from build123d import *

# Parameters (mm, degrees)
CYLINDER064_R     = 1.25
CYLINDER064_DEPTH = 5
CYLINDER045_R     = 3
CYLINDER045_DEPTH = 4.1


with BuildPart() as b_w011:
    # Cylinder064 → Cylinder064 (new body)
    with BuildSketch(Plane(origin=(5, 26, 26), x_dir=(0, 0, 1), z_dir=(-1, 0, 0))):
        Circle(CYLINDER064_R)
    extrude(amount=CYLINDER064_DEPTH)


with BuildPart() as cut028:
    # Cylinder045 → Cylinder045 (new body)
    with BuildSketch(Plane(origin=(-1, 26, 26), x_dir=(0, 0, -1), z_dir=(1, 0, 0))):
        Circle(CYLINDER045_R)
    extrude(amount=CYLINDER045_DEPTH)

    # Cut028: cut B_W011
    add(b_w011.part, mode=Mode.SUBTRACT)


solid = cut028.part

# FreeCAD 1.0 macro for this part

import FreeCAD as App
import Part
import Sketcher

doc = App.newDocument("Part")
body = doc.addObject("PartDesign::Body", "Body")

# Sketch on YZ plane
sketch1 = body.newObject("Sketcher::SketchObject", "Sketch")
sketch1.AttachmentSupport = (doc.getObject("YZ_Plane"), [""])
sketch1.MapMode = "FlatFace"
sketch1.AttachmentOffset = App.Placement(App.Vector(0, 0, 5), App.Rotation())
sketch1.addGeometry(Part.Circle(App.Vector(26, 26, 0), App.Vector(0, 0, 1), 1.2), False)
sketch1.addConstraint([
    Sketcher.Constraint("Diameter", 0, 2.5),
    Sketcher.Constraint("DistanceX", -1, 1, 0, 3, 26.0),
    Sketcher.Constraint("DistanceY", -1, 1, 0, 3, 26.0),
])
pad1 = body.newObject("PartDesign::Pad", "Pad")
pad1.Profile = sketch1
pad1.Length = 5
pad1.Reversed = True
body2 = doc.addObject("PartDesign::Body", "Body001")

# Sketch on YZ plane
sketch2 = body2.newObject("Sketcher::SketchObject", "Sketch001")
sketch2.AttachmentSupport = (doc.getObject("YZ_Plane001"), [""])
sketch2.MapMode = "FlatFace"
sketch2.AttachmentOffset = App.Placement(App.Vector(0, 0, -1), App.Rotation())
sketch2.addGeometry(Part.Circle(App.Vector(26, 26, 0), App.Vector(0, 0, 1), 3), False)
sketch2.addConstraint([
    Sketcher.Constraint("Diameter", 0, 6.0),
    Sketcher.Constraint("DistanceX", -1, 1, 0, 3, 26.0),
    Sketcher.Constraint("DistanceY", -1, 1, 0, 3, 26.0),
])
pad2 = body2.newObject("PartDesign::Pad", "Pad001")
pad2.Profile = sketch2
pad2.Length = 4.1
doc.recompute()

boolean = body2.newObject("PartDesign::Boolean", "Boolean")
boolean.Type = "Cut"
boolean.addObjects([body])

doc.recompute()
